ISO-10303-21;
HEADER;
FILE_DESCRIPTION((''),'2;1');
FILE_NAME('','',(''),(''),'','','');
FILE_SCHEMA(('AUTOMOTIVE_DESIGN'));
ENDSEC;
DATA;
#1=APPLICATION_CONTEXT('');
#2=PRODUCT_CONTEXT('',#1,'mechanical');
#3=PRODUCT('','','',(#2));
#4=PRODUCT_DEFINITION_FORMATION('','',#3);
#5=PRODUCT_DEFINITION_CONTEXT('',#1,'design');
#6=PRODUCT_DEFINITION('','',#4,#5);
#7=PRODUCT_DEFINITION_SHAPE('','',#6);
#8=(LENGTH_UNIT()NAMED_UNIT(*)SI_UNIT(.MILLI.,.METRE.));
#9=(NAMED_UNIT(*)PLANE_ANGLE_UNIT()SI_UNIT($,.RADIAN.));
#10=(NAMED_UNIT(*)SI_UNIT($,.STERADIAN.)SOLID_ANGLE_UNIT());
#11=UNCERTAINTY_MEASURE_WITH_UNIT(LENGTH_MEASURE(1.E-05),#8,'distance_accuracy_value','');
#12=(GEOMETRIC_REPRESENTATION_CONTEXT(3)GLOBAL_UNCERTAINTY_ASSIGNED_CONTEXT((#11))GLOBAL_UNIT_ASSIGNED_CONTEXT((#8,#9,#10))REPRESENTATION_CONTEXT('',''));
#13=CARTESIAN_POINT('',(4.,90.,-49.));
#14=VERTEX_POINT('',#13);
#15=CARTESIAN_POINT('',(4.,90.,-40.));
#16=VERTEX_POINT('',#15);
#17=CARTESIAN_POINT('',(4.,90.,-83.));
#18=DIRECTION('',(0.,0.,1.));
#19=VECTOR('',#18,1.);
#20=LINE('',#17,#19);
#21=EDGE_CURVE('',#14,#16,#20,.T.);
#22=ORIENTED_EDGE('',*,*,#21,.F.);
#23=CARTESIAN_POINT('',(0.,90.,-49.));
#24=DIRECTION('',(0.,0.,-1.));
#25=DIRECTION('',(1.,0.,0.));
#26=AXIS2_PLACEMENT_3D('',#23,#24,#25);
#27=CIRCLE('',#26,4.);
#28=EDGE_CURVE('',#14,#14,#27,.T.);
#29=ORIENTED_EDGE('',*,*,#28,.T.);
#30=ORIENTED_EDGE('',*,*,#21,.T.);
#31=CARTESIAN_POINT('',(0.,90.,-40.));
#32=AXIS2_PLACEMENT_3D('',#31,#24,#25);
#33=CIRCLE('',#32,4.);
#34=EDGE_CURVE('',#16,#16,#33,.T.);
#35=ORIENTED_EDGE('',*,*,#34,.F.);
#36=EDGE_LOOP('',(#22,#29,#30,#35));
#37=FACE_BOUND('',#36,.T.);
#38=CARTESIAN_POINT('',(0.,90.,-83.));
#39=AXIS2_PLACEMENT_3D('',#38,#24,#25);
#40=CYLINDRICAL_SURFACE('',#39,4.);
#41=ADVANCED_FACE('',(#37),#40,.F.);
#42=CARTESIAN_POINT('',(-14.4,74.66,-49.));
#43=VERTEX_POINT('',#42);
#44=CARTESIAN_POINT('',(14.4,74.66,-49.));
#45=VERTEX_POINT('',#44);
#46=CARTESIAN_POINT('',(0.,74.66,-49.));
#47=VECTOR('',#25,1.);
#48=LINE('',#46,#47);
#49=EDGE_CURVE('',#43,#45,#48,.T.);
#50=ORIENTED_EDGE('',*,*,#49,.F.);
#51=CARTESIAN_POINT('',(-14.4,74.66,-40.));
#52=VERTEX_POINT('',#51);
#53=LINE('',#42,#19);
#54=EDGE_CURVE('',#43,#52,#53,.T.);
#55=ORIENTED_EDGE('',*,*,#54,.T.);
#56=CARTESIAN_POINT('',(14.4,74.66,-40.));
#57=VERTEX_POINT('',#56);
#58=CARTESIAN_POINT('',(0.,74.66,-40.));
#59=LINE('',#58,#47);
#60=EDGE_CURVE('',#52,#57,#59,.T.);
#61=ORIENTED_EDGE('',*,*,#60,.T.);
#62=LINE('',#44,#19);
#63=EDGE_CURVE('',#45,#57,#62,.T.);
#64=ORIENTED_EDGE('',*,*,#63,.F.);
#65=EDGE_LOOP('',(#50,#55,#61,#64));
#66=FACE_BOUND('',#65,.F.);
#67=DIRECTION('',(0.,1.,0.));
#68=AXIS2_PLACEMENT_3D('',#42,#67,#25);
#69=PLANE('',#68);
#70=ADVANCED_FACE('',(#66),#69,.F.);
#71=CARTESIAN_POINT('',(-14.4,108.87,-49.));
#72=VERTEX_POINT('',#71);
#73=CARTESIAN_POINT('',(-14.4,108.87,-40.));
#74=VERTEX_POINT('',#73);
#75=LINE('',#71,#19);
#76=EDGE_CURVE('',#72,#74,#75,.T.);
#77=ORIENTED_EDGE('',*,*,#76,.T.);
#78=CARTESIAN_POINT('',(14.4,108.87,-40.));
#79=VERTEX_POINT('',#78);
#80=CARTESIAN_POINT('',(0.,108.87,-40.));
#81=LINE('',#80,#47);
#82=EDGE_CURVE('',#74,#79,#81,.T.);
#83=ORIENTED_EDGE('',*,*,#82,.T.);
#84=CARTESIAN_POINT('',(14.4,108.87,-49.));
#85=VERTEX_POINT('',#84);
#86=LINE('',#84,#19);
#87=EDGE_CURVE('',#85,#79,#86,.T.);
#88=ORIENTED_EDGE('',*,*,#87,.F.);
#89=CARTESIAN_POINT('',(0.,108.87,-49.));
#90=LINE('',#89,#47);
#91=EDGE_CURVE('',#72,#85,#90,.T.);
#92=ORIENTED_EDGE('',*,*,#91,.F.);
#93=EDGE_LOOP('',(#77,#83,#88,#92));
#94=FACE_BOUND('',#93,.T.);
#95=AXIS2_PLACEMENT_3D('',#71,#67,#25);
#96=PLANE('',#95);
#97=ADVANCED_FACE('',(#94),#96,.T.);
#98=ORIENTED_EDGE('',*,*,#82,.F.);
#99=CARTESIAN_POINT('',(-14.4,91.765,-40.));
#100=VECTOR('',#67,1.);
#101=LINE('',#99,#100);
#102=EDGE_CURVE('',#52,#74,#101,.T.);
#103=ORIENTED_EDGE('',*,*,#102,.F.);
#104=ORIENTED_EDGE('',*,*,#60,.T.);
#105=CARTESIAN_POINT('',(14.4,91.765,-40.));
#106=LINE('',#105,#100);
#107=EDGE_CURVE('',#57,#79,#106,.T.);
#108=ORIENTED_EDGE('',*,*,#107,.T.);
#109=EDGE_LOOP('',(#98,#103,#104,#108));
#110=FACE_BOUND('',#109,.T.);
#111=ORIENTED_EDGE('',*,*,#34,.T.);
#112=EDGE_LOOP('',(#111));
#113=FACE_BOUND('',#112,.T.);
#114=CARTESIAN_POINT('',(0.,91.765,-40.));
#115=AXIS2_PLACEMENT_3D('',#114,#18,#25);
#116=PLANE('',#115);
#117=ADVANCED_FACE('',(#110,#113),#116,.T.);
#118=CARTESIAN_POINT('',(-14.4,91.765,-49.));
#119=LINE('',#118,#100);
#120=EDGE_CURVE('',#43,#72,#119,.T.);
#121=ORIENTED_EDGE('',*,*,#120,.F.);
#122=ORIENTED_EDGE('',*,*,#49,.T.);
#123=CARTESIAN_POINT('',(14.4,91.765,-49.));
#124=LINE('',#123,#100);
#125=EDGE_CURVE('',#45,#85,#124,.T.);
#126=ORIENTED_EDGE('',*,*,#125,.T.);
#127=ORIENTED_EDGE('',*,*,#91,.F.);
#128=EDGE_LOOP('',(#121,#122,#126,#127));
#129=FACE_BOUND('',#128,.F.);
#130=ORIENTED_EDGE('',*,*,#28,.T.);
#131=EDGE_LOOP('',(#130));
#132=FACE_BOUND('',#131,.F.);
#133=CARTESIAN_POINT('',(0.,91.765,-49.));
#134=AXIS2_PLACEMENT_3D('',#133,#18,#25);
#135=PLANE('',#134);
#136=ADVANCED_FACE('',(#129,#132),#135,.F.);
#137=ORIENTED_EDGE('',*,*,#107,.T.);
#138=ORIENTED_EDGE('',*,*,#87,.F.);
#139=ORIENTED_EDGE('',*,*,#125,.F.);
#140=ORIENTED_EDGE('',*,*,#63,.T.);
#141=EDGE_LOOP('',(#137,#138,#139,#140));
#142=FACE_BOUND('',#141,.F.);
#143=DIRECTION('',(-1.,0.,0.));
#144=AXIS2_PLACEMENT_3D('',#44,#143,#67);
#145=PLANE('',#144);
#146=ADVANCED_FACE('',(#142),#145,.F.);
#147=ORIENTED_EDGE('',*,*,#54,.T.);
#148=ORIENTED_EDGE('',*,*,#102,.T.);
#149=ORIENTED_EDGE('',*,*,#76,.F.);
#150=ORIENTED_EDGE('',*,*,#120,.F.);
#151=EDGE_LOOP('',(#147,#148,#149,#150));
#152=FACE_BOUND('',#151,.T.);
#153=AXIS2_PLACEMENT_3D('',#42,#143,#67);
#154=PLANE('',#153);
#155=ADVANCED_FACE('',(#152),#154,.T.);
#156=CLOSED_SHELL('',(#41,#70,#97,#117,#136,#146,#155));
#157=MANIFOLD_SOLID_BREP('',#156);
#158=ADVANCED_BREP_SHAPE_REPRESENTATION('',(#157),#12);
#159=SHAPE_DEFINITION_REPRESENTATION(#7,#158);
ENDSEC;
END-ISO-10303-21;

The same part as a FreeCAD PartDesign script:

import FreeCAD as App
import Part
import Sketcher

doc = App.newDocument("Part")
params = doc.addObject("Spreadsheet::Sheet", "Params")
for row, (alias, value) in enumerate([
    ("sketch1_diameter", "8 mm"),
    ("pad1_length", "100 mm"),
    ("sketch2_width", "28.8 mm"),
    ("sketch2_height", "34.21 mm"),
    ("pad2_length", "9 mm"),
], start=1):
    params.set(f"A{row}", alias)
    params.set(f"B{row}", "=" + value)
    params.setAlias(f"B{row}", alias)

body = doc.addObject("PartDesign::Body", "Body")

sketch1 = body.newObject("Sketcher::SketchObject", "Sketch")
sketch1.AttachmentSupport = (doc.getObject("XY_Plane"), [""])
sketch1.MapMode = "FlatFace"
sketch1.addGeometry(Part.Circle(App.Vector(0, 0, 0), App.Vector(0, 0, 1), 4), False)
sketch1.addConstraint(Sketcher.Constraint("Coincident", 0, 3, -1, 1))
sketch1.addConstraint(Sketcher.Constraint("Diameter", 0, 8.0))
sketch1.setExpression("Constraints[1]", "Params.sketch1_diameter")
pad1 = body.newObject("PartDesign::Pad", "Pad")
pad1.Profile = sketch1
pad1.setExpression("Length", "Params.pad1_length")
body2 = doc.addObject("PartDesign::Body", "Body001")

sketch2 = body2.newObject("Sketcher::SketchObject", "Sketch001")
sketch2.AttachmentSupport = (doc.getObject("XY_Plane001"), [""])
sketch2.MapMode = "FlatFace"
sketch2.AttachmentOffset = App.Placement(App.Vector(0, 0, 34), App.Rotation())
sketch2.addGeometry(Part.LineSegment(App.Vector(-14, 19, 0), App.Vector(-14, -15, 0)), False)
sketch2.addGeometry(Part.LineSegment(App.Vector(-14, -15, 0), App.Vector(14, -15, 0)), False)
sketch2.addGeometry(Part.LineSegment(App.Vector(14, -15, 0), App.Vector(14, 19, 0)), False)
sketch2.addGeometry(Part.LineSegment(App.Vector(14, 19, 0), App.Vector(-14, 19, 0)), False)
sketch2.addConstraint(Sketcher.Constraint("Coincident", 0, 2, 1, 1))
sketch2.addConstraint(Sketcher.Constraint("Coincident", 1, 2, 2, 1))
sketch2.addConstraint(Sketcher.Constraint("Coincident", 2, 2, 3, 1))
sketch2.addConstraint(Sketcher.Constraint("Coincident", 3, 2, 0, 1))
sketch2.addConstraint(Sketcher.Constraint("Vertical", 0))
sketch2.addConstraint(Sketcher.Constraint("Horizontal", 1))
sketch2.addConstraint(Sketcher.Constraint("Vertical", 2))
sketch2.addConstraint(Sketcher.Constraint("Horizontal", 3))
sketch2.addConstraint(Sketcher.Constraint("DistanceX", 1, 1, 1, 2, 28.8))
sketch2.addConstraint(Sketcher.Constraint("DistanceY", 0, 2, 0, 1, 34.21))
sketch2.addConstraint(Sketcher.Constraint("DistanceX", 0, 2, -1, 1, 14.4))
sketch2.addConstraint(Sketcher.Constraint("DistanceY", 0, 2, -1, 1, 15.34))
sketch2.setExpression("Constraints[8]", "Params.sketch2_width")
sketch2.setExpression("Constraints[9]", "Params.sketch2_height")
pad2 = body2.newObject("PartDesign::Pad", "Pad001")
pad2.Profile = sketch2
pad2.setExpression("Length", "Params.pad2_length")
doc.recompute()

boolean = body2.newObject("PartDesign::Boolean", "Boolean")
boolean.Type = "Cut"
boolean.addObjects([body])
body3 = doc.addObject("PartDesign::Body", "Body002")
doc.recompute()

body2.Placement = App.Placement(App.Vector(0, 90, -83), App.Rotation(App.Vector(0, 0, 1), 0))
boolean2 = body3.newObject("PartDesign::Boolean", "Boolean001")
boolean2.Type = "Fuse"
boolean2.addObjects([body2])

doc.recompute()
